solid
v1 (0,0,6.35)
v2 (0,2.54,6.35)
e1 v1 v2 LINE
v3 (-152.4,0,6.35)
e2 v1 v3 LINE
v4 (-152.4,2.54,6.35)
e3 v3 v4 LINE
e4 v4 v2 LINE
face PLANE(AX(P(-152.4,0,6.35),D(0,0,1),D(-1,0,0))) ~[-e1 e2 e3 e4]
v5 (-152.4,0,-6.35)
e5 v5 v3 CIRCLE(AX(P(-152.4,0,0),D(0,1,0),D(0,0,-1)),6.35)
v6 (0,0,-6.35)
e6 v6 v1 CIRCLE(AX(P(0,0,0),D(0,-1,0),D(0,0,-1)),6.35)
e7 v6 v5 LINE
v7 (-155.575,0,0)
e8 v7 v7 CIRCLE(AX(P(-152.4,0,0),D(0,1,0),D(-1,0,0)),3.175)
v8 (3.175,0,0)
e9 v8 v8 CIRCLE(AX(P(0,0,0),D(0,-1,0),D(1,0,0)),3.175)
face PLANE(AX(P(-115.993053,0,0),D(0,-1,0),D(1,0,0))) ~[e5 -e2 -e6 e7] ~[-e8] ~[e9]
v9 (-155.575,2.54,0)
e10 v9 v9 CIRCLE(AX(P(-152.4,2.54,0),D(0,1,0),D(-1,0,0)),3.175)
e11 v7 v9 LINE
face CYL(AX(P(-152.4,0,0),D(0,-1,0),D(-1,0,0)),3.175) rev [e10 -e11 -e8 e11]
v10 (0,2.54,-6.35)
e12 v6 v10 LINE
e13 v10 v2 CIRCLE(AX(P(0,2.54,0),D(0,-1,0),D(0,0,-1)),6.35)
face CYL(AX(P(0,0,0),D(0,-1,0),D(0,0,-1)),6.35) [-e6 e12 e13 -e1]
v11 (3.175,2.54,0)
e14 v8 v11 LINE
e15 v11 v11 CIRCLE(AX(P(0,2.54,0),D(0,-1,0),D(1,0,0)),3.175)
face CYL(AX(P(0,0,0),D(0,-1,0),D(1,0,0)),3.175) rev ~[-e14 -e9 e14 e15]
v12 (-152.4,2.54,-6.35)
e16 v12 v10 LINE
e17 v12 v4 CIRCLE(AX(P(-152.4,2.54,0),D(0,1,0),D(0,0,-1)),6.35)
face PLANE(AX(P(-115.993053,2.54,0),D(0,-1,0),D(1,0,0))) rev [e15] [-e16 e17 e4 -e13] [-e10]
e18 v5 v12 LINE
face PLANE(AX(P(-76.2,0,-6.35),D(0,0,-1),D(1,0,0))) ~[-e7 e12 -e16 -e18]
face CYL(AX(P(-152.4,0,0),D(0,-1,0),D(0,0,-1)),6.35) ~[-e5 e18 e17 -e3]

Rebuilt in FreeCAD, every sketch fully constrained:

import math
import FreeCAD as App
import Part
import Sketcher

V = App.Vector
Q = App.Units.Quantity

doc = App.newDocument("Part")
body = doc.addObject("PartDesign::Body", "Body")

sketch1 = doc.addObject("Sketcher::SketchObject", "Sketch")
body.addObject(sketch1)
sketch1.AttachmentSupport = (doc.XZ_Plane, [""])
sketch1.MapMode = "FlatFace"
sketch1.addGeometry(Part.LineSegment(V(-76.2, -6.3, 0), V(0, -6.3, 0)), False)
sketch1.addGeometry(Part.ArcOfCircle(Part.Circle(V(0, 0, 0), V(0, 0, 1), 6.3), math.radians(-90), math.radians(90)), False)
sketch1.addGeometry(Part.LineSegment(V(0, 6.3, 0), V(-76.2, 6.3, 0)), False)
sketch1.addGeometry(Part.LineSegment(V(-76.2, 6.3, 0), V(-76.2, -6.3, 0)), False)
sketch1.addGeometry(Part.Circle(V(0, 0, 0), V(0, 0, 1), 3.2), False)
sketch1.addConstraint(Sketcher.Constraint("Tangent", 0, 2, 1, 1))
sketch1.addConstraint(Sketcher.Constraint("Tangent", 1, 2, 2, 1))
sketch1.addConstraint(Sketcher.Constraint("Coincident", 2, 2, 3, 1))
sketch1.addConstraint(Sketcher.Constraint("Coincident", 3, 2, 0, 1))
sketch1.addConstraint(Sketcher.Constraint("Horizontal", 0))
sketch1.addConstraint(Sketcher.Constraint("Horizontal", 2))
sketch1.addConstraint(Sketcher.Constraint("Vertical", 3))
sketch1.addConstraint(Sketcher.Constraint("Coincident", 1, 3, -1, 1))
sketch1.addConstraint(Sketcher.Constraint("Coincident", 4, 3, -1, 1))
sketch1.addConstraint(Sketcher.Constraint("Diameter", 4, Q("0.25 in")))
sketch1.addConstraint(Sketcher.Constraint("DistanceX", 0, 1, 0, 2, Q("3 in")))
sketch1.addConstraint(Sketcher.Constraint("Radius", 1, Q("0.25 in")))
pad1 = doc.addObject("PartDesign::Pad", "Pad")
body.addObject(pad1)
pad1.Profile = sketch1
pad1.Length = Q("0.1 in")
pad1.Reversed = True
body2 = doc.addObject("PartDesign::Body", "Body001")
doc.recompute()

body2.BaseFeature = body
doc.recompute()

mirroring = doc.addObject("Part::Mirroring", "Mirroring")
mirroring.Source = body
mirroring.Base = V(-76.2, 1.27, 0)
mirroring.Normal = V(-1, 0, 0)
body3 = doc.addObject("PartDesign::Body", "Body002")
body3.BaseFeature = mirroring
boolean = doc.addObject("PartDesign::Boolean", "Boolean")
body2.addObject(boolean)
boolean.Type = "Fuse"
boolean.addObjects([body3])
doc.recompute()
mirroring.Visibility = False

doc.recompute()
